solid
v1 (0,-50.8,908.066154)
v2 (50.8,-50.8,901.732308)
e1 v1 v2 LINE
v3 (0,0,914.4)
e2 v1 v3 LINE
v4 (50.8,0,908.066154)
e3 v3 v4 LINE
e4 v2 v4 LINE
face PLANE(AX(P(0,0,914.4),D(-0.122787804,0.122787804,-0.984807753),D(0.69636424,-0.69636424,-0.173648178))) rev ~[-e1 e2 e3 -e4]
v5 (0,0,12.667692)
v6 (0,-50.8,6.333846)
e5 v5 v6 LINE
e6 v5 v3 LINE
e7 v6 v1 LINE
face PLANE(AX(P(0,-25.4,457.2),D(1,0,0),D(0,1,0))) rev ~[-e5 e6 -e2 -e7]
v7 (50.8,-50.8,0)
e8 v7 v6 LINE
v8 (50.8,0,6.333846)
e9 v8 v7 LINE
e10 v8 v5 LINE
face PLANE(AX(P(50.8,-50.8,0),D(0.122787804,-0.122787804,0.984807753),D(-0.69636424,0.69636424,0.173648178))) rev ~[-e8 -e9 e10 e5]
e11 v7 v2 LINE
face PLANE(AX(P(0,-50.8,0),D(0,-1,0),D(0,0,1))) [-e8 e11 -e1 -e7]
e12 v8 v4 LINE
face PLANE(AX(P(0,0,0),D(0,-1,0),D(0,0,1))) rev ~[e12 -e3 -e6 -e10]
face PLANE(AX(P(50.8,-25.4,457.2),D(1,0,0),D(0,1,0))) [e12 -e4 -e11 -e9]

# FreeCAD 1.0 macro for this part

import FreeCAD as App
import Part
import Sketcher

V = App.Vector
Q = App.Units.Quantity

doc = App.newDocument("Part")
params = doc.addObject("Spreadsheet::Sheet", "Params")
for row, (alias, value) in enumerate([
    ("sketch1_width", "2 in"),
    ("sketch1_height", "36 in"),
    ("pad1_length", "2 in"),
    ("pocket1_length", "3 in"),
    ("pocket2_length", "3 in"),
], start=1):
    params.set(f"A{row}", alias)
    params.set(f"B{row}", "=" + value)
    params.setAlias(f"B{row}", alias)

body = doc.addObject("PartDesign::Body", "Body")

sketch1 = doc.addObject("Sketcher::SketchObject", "Sketch")
body.addObject(sketch1)
sketch1.AttachmentSupport = (doc.YZ_Plane, [""])
sketch1.MapMode = "FlatFace"
sketch1.addGeometry([
    Part.LineSegment(V(-51, 914, 0), V(-51, 0, 0)),
    Part.LineSegment(V(-51, 0, 0), V(0, 0, 0)),
    Part.LineSegment(V(0, 0, 0), V(0, 914, 0)),
    Part.LineSegment(V(0, 914, 0), V(-51, 914, 0)),
], False)
sketch1.addConstraint([
    Sketcher.Constraint("Coincident", 0, 2, 1, 1),
    Sketcher.Constraint("Coincident", 1, 2, 2, 1),
    Sketcher.Constraint("Coincident", 2, 2, 3, 1),
    Sketcher.Constraint("Coincident", 3, 2, 0, 1),
    Sketcher.Constraint("Vertical", 0),
    Sketcher.Constraint("Horizontal", 1),
    Sketcher.Constraint("Vertical", 2),
    Sketcher.Constraint("Horizontal", 3),
    Sketcher.Constraint("Coincident", 1, 2, -1, 1),
    Sketcher.Constraint("DistanceX", 1, 1, 1, 2, Q("2 in")),
    Sketcher.Constraint("DistanceY", 0, 2, 0, 1, Q("36 in")),
])
sketch1.setExpression("Constraints[9]", "Params.sketch1_width")
sketch1.setExpression("Constraints[10]", "Params.sketch1_height")
pad1 = doc.addObject("PartDesign::Pad", "Pad")
body.addObject(pad1)
pad1.Profile = sketch1
pad1.setExpression("Length", "Params.pad1_length")

sketch2 = doc.addObject("Sketcher::SketchObject", "Sketch001")
body.addObject(sketch2)
sketch2.Placement = App.Placement(V(0, 0, 0), App.Rotation(V(0.707106781, -0.707106781, 0), V(0, 0, 0.999999999), V(-0.707106781, -0.707106781, 0), "ZXY"))
sketch2.addGeometry([
    Part.LineSegment(V(72, 914, 0), V(0, 914, 0)),
    Part.LineSegment(V(0, 914, 0), V(72, 902, 0)),
    Part.LineSegment(V(72, 902, 0), V(72, 914, 0)),
], False)
sketch2.addConstraint([
    Sketcher.Constraint("Coincident", 0, 2, 1, 1),
    Sketcher.Constraint("Coincident", 1, 2, 2, 1),
    Sketcher.Constraint("Coincident", 2, 2, 0, 1),
    Sketcher.Constraint("Horizontal", 0),
    Sketcher.Constraint("Vertical", 2),
    Sketcher.Constraint("PointOnObject", 0, 2, -2),
    Sketcher.Constraint("DistanceY", -1, 1, 0, 2, Q("36 in")),
    Sketcher.Constraint("Angle", 1, Q("-10 deg")),
    Sketcher.Constraint("DistanceX", 0, 2, 0, 1, Q("71.842049 mm")),
])
pocket1 = doc.addObject("PartDesign::Pocket", "Pocket")
body.addObject(pocket1)
pocket1.Profile = sketch2
pocket1.setExpression("Length", "Params.pocket1_length")
pocket1.Midplane = True

sketch3 = doc.addObject("Sketcher::SketchObject", "Sketch002")
body.addObject(sketch3)
sketch3.Placement = App.Placement(V(0, 0, 0), App.Rotation(V(0.707106781, -0.707106781, 0), V(0, 0, 0.999999999), V(-0.707106781, -0.707106781, 0), "ZXY"))
sketch3.addGeometry([
    Part.LineSegment(V(0, 13, 0), V(0, 0, 0)),
    Part.LineSegment(V(0, 0, 0), V(72, 0, 0)),
    Part.LineSegment(V(72, 0, 0), V(0, 13, 0)),
], False)
sketch3.addConstraint([
    Sketcher.Constraint("Coincident", 0, 2, 1, 1),
    Sketcher.Constraint("Coincident", 1, 2, 2, 1),
    Sketcher.Constraint("Coincident", 2, 2, 0, 1),
    Sketcher.Constraint("Vertical", 0),
    Sketcher.Constraint("Horizontal", 1),
    Sketcher.Constraint("Coincident", 0, 2, -1, 1),
    Sketcher.Constraint("Angle", 2, Q("170 deg")),
    Sketcher.Constraint("DistanceX", 1, 1, 1, 2, Q("71.842049 mm")),
])
pocket2 = doc.addObject("PartDesign::Pocket", "Pocket001")
body.addObject(pocket2)
pocket2.Profile = sketch3
pocket2.setExpression("Length", "Params.pocket2_length")
pocket2.Midplane = True

doc.recompute()
